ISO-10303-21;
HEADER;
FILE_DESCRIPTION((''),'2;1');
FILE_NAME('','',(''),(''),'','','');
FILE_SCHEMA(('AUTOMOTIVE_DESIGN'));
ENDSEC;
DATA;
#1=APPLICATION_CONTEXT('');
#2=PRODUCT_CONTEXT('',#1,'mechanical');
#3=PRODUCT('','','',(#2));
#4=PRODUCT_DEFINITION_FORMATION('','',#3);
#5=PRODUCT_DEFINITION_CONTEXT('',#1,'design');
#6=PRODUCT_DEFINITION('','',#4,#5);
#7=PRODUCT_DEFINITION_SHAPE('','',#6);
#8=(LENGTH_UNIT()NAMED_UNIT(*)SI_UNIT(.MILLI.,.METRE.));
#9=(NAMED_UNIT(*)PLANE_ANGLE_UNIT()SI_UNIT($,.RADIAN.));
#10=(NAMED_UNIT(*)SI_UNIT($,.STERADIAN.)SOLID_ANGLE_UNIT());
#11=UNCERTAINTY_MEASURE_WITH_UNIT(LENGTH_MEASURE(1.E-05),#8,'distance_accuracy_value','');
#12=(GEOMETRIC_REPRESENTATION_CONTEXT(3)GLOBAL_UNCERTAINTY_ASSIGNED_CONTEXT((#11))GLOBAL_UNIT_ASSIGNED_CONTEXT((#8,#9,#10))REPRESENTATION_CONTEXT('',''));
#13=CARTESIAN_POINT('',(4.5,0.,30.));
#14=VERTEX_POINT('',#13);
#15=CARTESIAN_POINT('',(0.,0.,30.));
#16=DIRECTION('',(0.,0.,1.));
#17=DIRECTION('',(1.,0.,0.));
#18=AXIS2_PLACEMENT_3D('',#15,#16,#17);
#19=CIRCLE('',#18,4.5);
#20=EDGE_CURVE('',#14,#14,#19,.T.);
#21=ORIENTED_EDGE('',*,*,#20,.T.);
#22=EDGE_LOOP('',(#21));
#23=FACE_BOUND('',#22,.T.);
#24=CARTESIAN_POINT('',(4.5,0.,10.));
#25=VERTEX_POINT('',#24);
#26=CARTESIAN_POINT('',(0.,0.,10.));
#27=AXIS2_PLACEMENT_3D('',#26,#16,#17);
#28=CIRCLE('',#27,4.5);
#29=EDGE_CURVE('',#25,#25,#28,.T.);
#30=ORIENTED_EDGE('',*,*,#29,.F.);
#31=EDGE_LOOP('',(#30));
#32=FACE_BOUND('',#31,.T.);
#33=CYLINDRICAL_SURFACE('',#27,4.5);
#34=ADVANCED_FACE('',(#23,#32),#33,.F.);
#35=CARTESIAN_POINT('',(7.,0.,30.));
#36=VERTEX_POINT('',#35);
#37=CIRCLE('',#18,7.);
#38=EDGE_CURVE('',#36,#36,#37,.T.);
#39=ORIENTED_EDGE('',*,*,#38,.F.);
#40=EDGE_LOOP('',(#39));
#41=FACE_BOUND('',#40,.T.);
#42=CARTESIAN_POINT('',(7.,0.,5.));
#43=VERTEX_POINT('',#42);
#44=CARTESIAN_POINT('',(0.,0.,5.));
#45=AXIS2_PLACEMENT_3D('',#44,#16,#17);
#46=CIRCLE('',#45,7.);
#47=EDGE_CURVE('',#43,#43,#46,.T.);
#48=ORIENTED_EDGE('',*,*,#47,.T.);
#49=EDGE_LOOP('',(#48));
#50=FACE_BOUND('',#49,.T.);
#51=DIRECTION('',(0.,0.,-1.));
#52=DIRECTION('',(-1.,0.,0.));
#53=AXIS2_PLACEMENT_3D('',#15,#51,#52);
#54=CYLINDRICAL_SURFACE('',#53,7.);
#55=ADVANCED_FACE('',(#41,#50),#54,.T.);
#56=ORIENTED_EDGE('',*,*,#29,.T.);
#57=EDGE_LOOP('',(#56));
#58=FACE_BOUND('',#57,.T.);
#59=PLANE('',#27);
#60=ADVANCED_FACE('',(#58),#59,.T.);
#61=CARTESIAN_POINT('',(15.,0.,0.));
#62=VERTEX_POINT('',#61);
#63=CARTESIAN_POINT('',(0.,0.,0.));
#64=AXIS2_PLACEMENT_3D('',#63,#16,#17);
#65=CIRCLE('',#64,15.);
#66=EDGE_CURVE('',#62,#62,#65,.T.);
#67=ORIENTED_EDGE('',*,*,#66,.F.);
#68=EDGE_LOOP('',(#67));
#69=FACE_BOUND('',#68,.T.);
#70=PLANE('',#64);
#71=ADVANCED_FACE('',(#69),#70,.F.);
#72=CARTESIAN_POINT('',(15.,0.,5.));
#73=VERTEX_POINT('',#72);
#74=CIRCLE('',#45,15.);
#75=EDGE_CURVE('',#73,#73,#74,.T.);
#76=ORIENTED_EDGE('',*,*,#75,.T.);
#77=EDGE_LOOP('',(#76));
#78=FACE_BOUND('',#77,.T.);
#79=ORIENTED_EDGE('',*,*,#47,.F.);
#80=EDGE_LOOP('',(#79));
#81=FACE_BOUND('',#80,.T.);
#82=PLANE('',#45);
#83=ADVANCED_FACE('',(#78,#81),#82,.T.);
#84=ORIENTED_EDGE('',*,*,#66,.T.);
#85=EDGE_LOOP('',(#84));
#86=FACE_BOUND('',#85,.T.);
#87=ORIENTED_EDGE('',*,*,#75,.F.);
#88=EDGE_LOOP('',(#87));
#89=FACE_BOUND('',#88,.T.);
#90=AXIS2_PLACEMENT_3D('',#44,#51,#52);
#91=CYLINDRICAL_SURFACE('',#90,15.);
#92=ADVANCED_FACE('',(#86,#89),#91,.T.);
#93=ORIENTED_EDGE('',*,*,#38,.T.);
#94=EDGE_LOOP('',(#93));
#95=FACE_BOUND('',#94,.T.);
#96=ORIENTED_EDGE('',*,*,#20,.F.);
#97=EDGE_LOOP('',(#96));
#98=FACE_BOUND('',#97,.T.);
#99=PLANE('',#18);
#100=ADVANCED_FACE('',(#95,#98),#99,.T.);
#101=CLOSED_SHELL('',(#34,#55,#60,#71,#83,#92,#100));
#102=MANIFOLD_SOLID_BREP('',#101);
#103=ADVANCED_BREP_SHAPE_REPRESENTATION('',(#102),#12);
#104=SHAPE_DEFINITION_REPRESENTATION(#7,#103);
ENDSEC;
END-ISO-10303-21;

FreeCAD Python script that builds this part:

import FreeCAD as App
import Part
import Sketcher
from FreeCAD import Vector

doc = App.newDocument("Part")
body = doc.addObject("PartDesign::Body", "Body")

# Sketch on XY plane
sketch1 = doc.addObject("Sketcher::SketchObject", "Sketch")
body.addObject(sketch1)
sketch1.AttachmentSupport = (doc.XY_Plane, [""])
sketch1.MapMode = "FlatFace"
sketch1.addGeometry(Part.Circle(Vector(0, 0, 0), Vector(0, 0, 1), 15), False)
sketch1.addConstraint([
    Sketcher.Constraint("Coincident", 0, 3, -1, 1),
    Sketcher.Constraint("Diameter", 0, 30.0),
])
pad1 = doc.addObject("PartDesign::Pad", "Pad")
body.addObject(pad1)
pad1.Profile = sketch1
pad1.Length = 5

# Sketch on XY plane
sketch2 = doc.addObject("Sketcher::SketchObject", "Sketch001")
body.addObject(sketch2)
sketch2.AttachmentSupport = (doc.XY_Plane, [""])
sketch2.MapMode = "FlatFace"
sketch2.AttachmentOffset = App.Placement(Vector(0, 0, 5), App.Rotation())
sketch2.addGeometry(Part.Circle(Vector(0, 0, 0), Vector(0, 0, 1), 7), False)
sketch2.addConstraint([
    Sketcher.Constraint("Coincident", 0, 3, -1, 1),
    Sketcher.Constraint("Diameter", 0, 14.0),
])
pad2 = doc.addObject("PartDesign::Pad", "Pad001")
body.addObject(pad2)
pad2.Profile = sketch2
pad2.Length = 25

# Sketch on XY plane
sketch3 = doc.addObject("Sketcher::SketchObject", "Sketch002")
body.addObject(sketch3)
sketch3.AttachmentSupport = (doc.XY_Plane, [""])
sketch3.MapMode = "FlatFace"
sketch3.AttachmentOffset = App.Placement(Vector(0, 0, 30), App.Rotation())
sketch3.addGeometry(Part.Circle(Vector(0, 0, 0), Vector(0, 0, 1), 4.5), False)
sketch3.addConstraint([
    Sketcher.Constraint("Coincident", 0, 3, -1, 1),
    Sketcher.Constraint("Diameter", 0, 9.0),
])
pocket1 = doc.addObject("PartDesign::Pocket", "Pocket")
body.addObject(pocket1)
pocket1.Profile = sketch3
pocket1.Length = 20

doc.recompute()
